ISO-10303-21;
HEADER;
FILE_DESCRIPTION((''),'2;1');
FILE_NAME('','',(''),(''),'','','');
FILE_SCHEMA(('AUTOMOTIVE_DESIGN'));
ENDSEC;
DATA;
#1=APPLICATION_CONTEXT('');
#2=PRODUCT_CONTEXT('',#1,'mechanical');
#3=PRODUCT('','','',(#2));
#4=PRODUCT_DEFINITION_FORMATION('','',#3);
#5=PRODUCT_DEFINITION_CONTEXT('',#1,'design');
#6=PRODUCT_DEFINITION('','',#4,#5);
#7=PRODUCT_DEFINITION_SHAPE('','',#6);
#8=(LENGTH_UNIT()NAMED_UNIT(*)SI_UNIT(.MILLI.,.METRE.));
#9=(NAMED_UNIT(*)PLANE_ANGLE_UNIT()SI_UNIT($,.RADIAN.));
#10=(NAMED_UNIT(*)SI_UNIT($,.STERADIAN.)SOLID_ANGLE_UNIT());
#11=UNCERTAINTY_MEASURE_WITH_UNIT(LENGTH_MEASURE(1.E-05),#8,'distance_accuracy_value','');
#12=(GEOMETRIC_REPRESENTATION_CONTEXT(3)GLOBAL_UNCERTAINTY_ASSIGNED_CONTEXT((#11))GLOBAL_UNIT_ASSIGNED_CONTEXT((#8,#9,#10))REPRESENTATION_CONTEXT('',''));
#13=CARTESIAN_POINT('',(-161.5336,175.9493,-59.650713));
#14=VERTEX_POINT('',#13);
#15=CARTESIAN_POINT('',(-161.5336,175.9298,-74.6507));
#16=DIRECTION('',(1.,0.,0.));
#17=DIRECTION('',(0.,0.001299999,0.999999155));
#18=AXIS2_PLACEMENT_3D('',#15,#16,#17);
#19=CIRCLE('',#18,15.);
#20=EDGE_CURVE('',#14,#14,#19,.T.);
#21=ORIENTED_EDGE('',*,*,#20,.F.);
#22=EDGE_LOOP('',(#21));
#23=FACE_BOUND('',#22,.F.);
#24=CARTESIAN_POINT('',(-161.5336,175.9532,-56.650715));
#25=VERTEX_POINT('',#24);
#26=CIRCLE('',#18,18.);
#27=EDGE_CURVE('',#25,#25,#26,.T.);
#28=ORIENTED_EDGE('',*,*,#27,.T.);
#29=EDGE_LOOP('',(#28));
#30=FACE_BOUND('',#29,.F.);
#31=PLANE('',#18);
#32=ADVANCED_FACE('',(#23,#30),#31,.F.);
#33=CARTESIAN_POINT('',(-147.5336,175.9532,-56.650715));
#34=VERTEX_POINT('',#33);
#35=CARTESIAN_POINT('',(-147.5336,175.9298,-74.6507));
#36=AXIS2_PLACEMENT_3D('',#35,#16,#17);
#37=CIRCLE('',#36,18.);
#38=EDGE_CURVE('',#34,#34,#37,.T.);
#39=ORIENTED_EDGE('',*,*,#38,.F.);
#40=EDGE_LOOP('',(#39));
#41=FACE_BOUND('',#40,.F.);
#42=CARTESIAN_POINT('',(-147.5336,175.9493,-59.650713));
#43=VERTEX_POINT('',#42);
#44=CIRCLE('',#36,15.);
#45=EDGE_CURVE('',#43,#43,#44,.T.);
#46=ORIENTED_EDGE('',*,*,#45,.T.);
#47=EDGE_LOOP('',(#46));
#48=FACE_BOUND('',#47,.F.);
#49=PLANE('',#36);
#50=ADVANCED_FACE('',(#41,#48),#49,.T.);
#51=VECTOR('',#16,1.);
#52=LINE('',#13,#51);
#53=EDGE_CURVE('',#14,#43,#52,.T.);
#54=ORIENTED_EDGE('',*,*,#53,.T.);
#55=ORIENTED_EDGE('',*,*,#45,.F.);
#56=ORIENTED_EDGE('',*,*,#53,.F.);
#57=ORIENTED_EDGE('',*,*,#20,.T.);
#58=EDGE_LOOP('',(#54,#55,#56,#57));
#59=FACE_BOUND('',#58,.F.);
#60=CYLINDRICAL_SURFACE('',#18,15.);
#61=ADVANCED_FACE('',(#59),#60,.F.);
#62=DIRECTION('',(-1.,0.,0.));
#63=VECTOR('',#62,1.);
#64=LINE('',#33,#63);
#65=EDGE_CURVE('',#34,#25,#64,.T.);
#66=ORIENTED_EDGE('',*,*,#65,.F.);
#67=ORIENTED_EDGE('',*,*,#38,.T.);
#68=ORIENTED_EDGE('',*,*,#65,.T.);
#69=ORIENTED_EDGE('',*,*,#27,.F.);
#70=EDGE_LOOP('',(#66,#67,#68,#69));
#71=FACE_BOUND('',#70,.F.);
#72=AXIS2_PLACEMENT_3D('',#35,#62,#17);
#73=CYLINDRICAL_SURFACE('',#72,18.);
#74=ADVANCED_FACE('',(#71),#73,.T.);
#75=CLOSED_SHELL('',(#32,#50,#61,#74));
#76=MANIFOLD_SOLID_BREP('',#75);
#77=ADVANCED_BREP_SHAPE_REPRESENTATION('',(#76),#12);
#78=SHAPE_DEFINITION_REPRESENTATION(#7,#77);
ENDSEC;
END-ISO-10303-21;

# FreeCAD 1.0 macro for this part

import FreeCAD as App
import Part
import Sketcher
from FreeCAD import Vector
Q = App.Units.Quantity

doc = App.newDocument("Part")
params = doc.addObject("Spreadsheet::Sheet", "Params")
for row, (alias, value) in enumerate([
    ("sketch1_width", "14 mm"),
    ("sketch1_height", "3 mm"),
    ("revolution_angle", "360 deg"),
], start=1):
    params.set(f"A{row}", alias)
    params.set(f"B{row}", "=" + value)
    params.setAlias(f"B{row}", alias)

body = doc.addObject("PartDesign::Body", "Body")

# Sketch on an angled plane
sketch1 = body.newObject("Sketcher::SketchObject", "Sketch")
sketch1.Placement = App.Placement(Vector(-456.5336, 175.9298, -74.6507), App.Rotation(Vector(-1, 0, 0), Vector(0, 0.001299999, 0.999999155), Vector(0, 0.999999155, -0.001299999), "ZXY"))
sketch1.addGeometry(Part.LineSegment(Vector(-309, 18, 0), Vector(-309, 15, 0)), False)
sketch1.addGeometry(Part.LineSegment(Vector(-309, 15, 0), Vector(-295, 15, 0)), False)
sketch1.addGeometry(Part.LineSegment(Vector(-295, 15, 0), Vector(-295, 18, 0)), False)
sketch1.addGeometry(Part.LineSegment(Vector(-295, 18, 0), Vector(-309, 18, 0)), False)
sketch1.addConstraint(Sketcher.Constraint("Coincident", 0, 2, 1, 1))
sketch1.addConstraint(Sketcher.Constraint("Coincident", 1, 2, 2, 1))
sketch1.addConstraint(Sketcher.Constraint("Coincident", 2, 2, 3, 1))
sketch1.addConstraint(Sketcher.Constraint("Coincident", 3, 2, 0, 1))
sketch1.addConstraint(Sketcher.Constraint("Vertical", 0))
sketch1.addConstraint(Sketcher.Constraint("Horizontal", 1))
sketch1.addConstraint(Sketcher.Constraint("Vertical", 2))
sketch1.addConstraint(Sketcher.Constraint("Horizontal", 3))
sketch1.addConstraint(Sketcher.Constraint("DistanceY", -1, 1, 2, 2, Q("18 mm")))
sketch1.addConstraint(Sketcher.Constraint("DistanceX", 1, 1, 1, 2, Q("14 mm")))
sketch1.addConstraint(Sketcher.Constraint("DistanceY", 0, 2, 0, 1, Q("3 mm")))
sketch1.addConstraint(Sketcher.Constraint("DistanceX", 0, 2, -1, 1, Q("309 mm")))
sketch1.setExpression("Constraints[9]", "Params.sketch1_width")
sketch1.setExpression("Constraints[10]", "Params.sketch1_height")
revolution = body.newObject("PartDesign::Revolution", "Revolution")
revolution.Profile = sketch1
revolution.ReferenceAxis = (sketch1, ["H_Axis"])
revolution.setExpression("Angle", "Params.revolution_angle")

doc.recompute()
